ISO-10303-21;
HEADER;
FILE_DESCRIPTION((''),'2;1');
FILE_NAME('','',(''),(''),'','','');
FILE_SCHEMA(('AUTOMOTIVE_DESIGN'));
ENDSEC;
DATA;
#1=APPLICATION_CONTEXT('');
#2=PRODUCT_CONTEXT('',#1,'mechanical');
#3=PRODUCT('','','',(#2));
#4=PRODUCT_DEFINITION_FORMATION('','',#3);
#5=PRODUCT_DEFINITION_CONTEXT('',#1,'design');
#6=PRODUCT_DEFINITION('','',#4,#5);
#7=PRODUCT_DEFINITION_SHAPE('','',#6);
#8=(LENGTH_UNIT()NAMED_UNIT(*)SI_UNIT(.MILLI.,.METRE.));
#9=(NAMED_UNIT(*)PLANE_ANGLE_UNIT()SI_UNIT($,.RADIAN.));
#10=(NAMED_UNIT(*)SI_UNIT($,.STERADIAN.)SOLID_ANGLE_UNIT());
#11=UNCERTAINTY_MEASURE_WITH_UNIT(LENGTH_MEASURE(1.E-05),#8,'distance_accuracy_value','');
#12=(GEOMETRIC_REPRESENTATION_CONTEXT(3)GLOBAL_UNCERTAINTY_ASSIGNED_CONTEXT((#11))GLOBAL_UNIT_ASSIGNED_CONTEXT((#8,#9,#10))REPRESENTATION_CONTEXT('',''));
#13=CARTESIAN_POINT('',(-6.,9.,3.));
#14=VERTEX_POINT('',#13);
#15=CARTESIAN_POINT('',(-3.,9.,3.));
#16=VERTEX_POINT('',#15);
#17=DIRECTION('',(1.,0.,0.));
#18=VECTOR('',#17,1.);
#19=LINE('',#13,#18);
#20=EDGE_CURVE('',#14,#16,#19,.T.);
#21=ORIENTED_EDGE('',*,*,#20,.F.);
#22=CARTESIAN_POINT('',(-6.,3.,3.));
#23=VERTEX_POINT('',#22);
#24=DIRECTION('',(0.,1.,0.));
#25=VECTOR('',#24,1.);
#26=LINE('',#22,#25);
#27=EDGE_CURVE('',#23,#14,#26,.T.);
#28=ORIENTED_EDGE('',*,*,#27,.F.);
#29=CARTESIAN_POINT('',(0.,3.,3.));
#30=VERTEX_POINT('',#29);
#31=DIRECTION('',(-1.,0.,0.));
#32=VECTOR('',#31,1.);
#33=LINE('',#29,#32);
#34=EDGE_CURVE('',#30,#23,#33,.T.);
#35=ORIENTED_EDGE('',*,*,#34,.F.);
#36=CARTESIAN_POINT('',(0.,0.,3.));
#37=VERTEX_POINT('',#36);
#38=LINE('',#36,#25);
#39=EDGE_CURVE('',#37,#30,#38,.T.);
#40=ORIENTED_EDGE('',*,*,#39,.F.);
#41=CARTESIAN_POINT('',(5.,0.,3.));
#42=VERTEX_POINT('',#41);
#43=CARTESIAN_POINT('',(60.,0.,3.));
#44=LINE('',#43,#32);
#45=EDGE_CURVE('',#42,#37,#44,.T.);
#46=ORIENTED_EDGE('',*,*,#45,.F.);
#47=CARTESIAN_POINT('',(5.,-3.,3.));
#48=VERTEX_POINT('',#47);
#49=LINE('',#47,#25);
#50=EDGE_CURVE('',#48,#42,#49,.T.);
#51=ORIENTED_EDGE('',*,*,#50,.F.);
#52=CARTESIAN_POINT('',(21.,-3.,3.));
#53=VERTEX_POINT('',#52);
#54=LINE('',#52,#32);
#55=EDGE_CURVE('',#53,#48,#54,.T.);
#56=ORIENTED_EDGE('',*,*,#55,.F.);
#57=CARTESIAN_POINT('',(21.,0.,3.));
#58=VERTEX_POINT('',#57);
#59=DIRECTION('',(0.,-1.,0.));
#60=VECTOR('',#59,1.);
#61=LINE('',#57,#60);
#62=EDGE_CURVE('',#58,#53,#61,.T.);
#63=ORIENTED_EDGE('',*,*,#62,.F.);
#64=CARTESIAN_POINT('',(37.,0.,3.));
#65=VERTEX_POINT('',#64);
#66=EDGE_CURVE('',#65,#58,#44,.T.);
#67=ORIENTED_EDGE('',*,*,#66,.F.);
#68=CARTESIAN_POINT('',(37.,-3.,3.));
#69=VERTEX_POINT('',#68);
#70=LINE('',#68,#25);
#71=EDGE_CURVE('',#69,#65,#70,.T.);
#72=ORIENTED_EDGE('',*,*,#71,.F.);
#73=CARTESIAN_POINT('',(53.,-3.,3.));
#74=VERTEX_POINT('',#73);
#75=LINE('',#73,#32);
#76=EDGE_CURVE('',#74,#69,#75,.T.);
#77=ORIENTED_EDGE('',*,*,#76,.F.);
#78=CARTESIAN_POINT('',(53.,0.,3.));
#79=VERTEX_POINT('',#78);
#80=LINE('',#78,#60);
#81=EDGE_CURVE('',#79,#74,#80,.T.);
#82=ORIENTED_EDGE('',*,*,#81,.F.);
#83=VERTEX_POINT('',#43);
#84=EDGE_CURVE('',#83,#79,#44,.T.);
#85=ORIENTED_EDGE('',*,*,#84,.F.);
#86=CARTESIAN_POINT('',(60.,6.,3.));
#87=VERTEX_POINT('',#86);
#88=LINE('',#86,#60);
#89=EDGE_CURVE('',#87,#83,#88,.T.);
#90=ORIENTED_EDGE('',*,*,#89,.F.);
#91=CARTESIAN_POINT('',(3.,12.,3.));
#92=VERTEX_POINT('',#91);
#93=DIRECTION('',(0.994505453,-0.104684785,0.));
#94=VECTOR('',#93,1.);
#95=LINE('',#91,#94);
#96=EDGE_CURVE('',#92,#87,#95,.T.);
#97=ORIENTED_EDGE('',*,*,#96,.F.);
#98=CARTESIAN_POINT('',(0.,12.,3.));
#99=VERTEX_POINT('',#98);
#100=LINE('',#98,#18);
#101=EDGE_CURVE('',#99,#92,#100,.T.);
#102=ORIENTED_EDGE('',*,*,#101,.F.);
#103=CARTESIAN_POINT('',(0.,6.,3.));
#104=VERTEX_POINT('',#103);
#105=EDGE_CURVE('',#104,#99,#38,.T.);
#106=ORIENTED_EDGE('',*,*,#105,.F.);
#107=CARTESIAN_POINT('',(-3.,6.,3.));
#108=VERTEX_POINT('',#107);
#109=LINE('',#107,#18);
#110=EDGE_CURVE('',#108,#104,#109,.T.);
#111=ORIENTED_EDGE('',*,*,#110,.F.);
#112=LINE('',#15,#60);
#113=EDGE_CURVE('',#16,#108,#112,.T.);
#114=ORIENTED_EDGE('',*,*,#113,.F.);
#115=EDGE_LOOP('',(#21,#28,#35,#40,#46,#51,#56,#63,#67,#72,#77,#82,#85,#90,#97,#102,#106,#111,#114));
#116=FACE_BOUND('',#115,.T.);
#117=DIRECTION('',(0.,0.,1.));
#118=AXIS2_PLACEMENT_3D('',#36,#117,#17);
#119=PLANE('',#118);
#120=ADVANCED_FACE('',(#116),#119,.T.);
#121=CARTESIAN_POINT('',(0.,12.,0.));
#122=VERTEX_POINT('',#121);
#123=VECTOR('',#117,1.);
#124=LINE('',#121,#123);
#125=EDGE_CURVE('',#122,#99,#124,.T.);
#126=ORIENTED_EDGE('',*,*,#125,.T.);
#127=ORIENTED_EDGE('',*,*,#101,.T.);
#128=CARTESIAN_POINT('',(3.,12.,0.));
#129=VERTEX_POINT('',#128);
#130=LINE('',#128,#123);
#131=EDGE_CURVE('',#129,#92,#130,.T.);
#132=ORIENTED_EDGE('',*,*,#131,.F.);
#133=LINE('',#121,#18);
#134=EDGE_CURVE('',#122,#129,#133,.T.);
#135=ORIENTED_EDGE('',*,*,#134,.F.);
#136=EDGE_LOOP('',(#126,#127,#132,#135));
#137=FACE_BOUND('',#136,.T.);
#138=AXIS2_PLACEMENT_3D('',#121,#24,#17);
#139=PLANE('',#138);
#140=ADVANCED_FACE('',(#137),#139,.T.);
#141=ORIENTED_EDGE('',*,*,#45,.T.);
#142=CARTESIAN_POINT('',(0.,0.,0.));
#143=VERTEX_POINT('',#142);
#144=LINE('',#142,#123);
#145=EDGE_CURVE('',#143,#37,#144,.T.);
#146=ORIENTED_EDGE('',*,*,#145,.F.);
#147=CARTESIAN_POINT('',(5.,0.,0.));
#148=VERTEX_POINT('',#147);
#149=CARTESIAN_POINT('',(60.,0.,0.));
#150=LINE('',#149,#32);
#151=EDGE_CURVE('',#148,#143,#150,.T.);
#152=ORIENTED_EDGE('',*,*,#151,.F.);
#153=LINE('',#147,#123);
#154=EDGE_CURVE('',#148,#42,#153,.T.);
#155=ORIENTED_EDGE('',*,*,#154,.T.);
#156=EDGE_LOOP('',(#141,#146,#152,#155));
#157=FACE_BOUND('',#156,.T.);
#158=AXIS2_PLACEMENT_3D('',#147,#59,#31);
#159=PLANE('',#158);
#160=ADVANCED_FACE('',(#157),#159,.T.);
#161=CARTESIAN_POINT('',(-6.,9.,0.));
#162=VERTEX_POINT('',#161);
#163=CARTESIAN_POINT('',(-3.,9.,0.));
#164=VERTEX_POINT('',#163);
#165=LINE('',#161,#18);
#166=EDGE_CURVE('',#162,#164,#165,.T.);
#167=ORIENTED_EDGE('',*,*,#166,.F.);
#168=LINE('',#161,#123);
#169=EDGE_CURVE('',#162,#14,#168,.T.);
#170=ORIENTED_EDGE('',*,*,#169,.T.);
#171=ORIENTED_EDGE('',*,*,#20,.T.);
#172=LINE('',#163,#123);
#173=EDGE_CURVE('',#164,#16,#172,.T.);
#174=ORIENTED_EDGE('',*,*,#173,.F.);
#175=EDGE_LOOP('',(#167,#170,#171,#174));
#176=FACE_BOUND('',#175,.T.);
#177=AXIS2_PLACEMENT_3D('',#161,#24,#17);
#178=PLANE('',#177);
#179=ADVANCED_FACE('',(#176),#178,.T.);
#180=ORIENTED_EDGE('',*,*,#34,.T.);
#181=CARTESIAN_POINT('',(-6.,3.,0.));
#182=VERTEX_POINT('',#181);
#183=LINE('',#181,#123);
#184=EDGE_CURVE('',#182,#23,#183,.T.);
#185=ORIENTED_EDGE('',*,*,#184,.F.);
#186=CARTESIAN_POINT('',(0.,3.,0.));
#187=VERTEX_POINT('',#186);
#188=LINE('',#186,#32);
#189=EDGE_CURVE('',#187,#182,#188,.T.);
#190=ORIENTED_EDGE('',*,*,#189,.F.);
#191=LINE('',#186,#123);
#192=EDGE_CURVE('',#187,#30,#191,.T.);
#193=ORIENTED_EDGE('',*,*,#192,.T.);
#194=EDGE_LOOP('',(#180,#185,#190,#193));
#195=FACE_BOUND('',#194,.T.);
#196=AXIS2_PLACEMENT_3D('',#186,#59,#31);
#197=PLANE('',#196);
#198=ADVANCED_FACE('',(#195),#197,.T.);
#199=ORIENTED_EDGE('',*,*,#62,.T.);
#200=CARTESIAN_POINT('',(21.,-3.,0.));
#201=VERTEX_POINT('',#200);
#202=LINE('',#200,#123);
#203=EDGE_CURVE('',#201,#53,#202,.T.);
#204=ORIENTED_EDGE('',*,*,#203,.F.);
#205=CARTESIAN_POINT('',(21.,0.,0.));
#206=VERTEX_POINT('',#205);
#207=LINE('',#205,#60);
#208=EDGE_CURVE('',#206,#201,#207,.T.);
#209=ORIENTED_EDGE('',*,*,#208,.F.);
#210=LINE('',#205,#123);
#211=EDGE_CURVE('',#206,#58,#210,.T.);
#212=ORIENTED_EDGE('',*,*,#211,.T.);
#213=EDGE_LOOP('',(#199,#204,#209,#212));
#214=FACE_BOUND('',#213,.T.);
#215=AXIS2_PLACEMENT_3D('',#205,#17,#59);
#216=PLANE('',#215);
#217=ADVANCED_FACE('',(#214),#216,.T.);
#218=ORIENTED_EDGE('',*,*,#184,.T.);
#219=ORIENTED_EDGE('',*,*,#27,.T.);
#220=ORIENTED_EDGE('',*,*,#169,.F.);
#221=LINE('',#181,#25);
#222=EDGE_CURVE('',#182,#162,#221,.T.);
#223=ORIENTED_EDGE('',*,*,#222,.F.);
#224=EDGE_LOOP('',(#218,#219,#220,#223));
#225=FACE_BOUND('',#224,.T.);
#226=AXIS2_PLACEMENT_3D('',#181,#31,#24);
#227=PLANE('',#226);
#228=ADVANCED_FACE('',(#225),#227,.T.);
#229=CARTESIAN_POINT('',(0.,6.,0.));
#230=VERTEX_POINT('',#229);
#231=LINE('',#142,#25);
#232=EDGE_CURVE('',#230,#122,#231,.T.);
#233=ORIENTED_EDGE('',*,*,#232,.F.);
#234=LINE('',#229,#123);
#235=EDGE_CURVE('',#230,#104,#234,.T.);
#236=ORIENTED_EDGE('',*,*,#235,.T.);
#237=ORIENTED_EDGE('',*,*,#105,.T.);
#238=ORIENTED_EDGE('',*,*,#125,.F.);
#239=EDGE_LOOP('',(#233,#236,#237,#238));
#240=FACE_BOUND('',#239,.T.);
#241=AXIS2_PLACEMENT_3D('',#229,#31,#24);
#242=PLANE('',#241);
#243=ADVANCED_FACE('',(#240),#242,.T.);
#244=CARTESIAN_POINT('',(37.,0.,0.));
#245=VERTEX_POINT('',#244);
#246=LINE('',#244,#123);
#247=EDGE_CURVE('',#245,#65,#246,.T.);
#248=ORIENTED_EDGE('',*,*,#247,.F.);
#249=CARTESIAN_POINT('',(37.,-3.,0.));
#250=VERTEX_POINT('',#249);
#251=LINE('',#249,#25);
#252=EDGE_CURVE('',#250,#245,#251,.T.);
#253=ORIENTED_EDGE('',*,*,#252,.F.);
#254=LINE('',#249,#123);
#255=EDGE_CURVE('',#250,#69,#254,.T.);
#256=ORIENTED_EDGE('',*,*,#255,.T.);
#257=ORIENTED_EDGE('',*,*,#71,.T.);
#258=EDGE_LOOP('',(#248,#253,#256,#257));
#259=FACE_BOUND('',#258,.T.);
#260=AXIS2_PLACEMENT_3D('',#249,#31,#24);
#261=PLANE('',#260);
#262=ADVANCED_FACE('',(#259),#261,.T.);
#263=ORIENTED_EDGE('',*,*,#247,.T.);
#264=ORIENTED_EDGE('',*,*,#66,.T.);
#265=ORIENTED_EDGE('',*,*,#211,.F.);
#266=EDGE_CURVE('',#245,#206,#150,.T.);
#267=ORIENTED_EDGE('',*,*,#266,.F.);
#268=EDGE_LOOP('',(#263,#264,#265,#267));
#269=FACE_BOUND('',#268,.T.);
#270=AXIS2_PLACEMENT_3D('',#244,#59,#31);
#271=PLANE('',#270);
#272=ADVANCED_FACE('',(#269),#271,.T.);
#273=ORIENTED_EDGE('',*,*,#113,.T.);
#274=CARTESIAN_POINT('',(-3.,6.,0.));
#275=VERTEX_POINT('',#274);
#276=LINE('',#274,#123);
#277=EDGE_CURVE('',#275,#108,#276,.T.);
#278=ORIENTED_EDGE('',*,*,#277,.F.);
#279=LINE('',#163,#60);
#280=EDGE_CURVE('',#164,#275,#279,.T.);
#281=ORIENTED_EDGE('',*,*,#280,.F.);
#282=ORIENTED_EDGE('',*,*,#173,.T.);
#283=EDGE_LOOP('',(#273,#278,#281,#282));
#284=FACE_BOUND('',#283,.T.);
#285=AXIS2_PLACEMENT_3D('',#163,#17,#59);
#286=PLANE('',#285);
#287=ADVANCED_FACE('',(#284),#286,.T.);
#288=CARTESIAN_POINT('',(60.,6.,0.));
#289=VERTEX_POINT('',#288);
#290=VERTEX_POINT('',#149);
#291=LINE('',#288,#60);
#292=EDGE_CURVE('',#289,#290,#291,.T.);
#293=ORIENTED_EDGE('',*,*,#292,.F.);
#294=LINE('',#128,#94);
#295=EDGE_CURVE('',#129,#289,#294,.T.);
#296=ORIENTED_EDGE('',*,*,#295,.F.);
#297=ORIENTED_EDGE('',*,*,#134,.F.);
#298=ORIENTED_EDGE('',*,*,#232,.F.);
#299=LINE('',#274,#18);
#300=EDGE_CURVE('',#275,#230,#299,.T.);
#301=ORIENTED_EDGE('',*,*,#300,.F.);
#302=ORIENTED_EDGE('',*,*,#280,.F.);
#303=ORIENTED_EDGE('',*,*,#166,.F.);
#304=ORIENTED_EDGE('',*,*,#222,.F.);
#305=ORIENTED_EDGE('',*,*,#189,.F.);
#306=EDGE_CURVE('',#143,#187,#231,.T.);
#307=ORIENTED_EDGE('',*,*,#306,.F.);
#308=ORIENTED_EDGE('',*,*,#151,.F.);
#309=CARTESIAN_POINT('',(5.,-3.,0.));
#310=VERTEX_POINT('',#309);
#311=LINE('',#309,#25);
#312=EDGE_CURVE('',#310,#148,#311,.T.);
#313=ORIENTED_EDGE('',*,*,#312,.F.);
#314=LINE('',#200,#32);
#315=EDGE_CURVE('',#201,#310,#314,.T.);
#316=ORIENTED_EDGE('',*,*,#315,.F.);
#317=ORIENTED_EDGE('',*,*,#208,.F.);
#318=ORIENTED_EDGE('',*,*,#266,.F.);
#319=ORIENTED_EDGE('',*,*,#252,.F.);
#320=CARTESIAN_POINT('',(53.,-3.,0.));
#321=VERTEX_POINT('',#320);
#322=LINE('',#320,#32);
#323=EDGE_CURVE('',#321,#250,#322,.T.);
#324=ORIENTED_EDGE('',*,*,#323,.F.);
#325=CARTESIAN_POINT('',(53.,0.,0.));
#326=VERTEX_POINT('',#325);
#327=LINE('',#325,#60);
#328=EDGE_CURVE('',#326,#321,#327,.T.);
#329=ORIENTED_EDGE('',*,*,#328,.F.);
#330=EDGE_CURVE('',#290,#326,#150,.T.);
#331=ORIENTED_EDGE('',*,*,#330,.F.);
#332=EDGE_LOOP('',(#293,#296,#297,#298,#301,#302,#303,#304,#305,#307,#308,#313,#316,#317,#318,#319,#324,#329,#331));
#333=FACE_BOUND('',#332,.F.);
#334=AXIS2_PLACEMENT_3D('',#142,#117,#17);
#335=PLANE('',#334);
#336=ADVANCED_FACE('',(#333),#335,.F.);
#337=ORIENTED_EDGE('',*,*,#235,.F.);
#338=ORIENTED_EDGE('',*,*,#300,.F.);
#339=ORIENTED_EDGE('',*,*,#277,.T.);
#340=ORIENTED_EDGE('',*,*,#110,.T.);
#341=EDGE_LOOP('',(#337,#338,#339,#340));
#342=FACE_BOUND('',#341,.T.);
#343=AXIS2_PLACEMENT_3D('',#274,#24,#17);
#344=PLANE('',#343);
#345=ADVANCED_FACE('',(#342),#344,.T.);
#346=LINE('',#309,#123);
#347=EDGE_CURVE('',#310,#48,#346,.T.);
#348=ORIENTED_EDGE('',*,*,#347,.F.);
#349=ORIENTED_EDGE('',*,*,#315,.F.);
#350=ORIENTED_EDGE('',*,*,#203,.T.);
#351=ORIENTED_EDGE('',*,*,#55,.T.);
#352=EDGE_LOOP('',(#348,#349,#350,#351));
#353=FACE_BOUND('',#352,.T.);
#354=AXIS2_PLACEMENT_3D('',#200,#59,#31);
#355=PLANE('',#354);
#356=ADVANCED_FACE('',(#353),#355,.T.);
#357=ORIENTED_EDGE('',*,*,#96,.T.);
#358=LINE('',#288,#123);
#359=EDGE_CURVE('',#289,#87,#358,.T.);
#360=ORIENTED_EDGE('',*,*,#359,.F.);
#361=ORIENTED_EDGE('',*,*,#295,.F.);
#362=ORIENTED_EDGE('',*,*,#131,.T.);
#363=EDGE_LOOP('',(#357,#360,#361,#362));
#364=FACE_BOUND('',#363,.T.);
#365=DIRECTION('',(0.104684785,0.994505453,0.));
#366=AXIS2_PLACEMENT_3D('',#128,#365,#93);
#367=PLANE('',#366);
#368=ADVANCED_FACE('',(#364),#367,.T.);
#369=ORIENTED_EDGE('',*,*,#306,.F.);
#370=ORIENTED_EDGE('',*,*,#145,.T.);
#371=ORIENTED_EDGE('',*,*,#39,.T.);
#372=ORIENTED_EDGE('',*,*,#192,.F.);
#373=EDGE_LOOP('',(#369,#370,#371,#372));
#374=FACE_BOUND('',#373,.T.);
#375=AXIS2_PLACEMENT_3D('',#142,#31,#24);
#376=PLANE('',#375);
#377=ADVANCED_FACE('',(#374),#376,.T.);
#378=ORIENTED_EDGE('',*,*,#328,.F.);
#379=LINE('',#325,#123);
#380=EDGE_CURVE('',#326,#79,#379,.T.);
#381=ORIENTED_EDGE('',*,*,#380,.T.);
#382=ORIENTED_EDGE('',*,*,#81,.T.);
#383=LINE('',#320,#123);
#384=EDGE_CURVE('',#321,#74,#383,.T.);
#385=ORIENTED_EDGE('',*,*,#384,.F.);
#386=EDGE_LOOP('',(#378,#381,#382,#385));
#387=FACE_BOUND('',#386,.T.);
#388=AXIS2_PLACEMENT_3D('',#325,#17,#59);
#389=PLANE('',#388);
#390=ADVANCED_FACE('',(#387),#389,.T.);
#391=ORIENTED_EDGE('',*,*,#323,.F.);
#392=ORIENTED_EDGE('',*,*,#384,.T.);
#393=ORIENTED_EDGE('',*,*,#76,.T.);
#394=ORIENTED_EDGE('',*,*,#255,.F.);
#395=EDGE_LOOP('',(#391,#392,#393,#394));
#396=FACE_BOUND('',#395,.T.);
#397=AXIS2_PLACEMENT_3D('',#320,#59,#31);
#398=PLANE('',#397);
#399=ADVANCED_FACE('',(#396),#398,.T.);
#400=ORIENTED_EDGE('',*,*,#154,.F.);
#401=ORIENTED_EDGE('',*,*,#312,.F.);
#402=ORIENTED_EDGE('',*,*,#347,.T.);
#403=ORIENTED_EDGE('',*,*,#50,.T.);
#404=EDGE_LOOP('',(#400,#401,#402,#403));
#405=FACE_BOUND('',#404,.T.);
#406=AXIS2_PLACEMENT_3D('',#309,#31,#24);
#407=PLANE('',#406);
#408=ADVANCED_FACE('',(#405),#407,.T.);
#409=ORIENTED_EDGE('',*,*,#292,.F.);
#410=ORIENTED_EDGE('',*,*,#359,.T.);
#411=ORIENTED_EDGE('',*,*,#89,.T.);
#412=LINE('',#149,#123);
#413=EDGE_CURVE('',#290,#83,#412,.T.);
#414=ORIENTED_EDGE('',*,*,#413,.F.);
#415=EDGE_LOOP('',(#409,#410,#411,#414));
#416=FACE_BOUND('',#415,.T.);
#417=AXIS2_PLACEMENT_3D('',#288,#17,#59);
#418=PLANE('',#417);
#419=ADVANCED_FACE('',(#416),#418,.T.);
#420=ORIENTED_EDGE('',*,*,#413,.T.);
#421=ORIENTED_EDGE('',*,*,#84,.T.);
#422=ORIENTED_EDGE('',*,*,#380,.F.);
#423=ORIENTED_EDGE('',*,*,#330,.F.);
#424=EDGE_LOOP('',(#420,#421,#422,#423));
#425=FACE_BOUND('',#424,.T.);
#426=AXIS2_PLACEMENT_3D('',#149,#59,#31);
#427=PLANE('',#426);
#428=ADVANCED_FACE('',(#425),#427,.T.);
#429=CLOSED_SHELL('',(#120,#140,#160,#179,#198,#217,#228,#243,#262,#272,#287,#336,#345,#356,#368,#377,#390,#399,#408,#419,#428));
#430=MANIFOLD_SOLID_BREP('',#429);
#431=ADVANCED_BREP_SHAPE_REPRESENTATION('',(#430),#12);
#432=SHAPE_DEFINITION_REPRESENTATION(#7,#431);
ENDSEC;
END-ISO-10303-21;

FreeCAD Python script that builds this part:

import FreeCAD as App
import Part
import Sketcher
from FreeCAD import Vector
Q = App.Units.Quantity

doc = App.newDocument("Part")
body = doc.addObject("PartDesign::Body", "Body")

# Sketch on XY plane
sketch1 = body.newObject("Sketcher::SketchObject", "Sketch")
sketch1.AttachmentSupport = (doc.getObject("XY_Plane"), [""])
sketch1.MapMode = "FlatFace"
sketch1.addGeometry([
    Part.LineSegment(Vector(0, 3, 0), Vector(0, 0, 0)),  # 0
    Part.LineSegment(Vector(0, 0, 0), Vector(5, 0, 0)),  # 1
    Part.LineSegment(Vector(5, 0, 0), Vector(5, -3, 0)),  # 2
    Part.LineSegment(Vector(5, -3, 0), Vector(21, -3, 0)),  # 3
    Part.LineSegment(Vector(21, -3, 0), Vector(21, 0, 0)),  # 4
    Part.LineSegment(Vector(21, 0, 0), Vector(37, 0, 0)),  # 5
    Part.LineSegment(Vector(37, 0, 0), Vector(37, -3, 0)),  # 6
    Part.LineSegment(Vector(37, -3, 0), Vector(53, -3, 0)),  # 7
    Part.LineSegment(Vector(53, -3, 0), Vector(53, 0, 0)),  # 8
    Part.LineSegment(Vector(53, 0, 0), Vector(60, 0, 0)),  # 9
    Part.LineSegment(Vector(60, 0, 0), Vector(60, 6, 0)),  # 10
    Part.LineSegment(Vector(60, 6, 0), Vector(3, 12, 0)),  # 11
    Part.LineSegment(Vector(3, 12, 0), Vector(0, 12, 0)),  # 12
    Part.LineSegment(Vector(0, 12, 0), Vector(0, 6, 0)),  # 13
    Part.LineSegment(Vector(0, 6, 0), Vector(-3, 6, 0)),  # 14
    Part.LineSegment(Vector(-3, 6, 0), Vector(-3, 9, 0)),  # 15
    Part.LineSegment(Vector(-3, 9, 0), Vector(-6, 9, 0)),  # 16
    Part.LineSegment(Vector(-6, 9, 0), Vector(-6, 3, 0)),  # 17
    Part.LineSegment(Vector(-6, 3, 0), Vector(0, 3, 0)),  # 18
], False)
sketch1.addConstraint([
    Sketcher.Constraint("Coincident", 0, 2, 1, 1),
    Sketcher.Constraint("Coincident", 1, 2, 2, 1),
    Sketcher.Constraint("Coincident", 2, 2, 3, 1),
    Sketcher.Constraint("Coincident", 3, 2, 4, 1),
    Sketcher.Constraint("Coincident", 4, 2, 5, 1),
    Sketcher.Constraint("Coincident", 5, 2, 6, 1),
    Sketcher.Constraint("Coincident", 6, 2, 7, 1),
    Sketcher.Constraint("Coincident", 7, 2, 8, 1),
    Sketcher.Constraint("Coincident", 8, 2, 9, 1),
    Sketcher.Constraint("Coincident", 9, 2, 10, 1),
    Sketcher.Constraint("Coincident", 10, 2, 11, 1),
    Sketcher.Constraint("Coincident", 11, 2, 12, 1),
    Sketcher.Constraint("Coincident", 12, 2, 13, 1),
    Sketcher.Constraint("Coincident", 13, 2, 14, 1),
    Sketcher.Constraint("Coincident", 14, 2, 15, 1),
    Sketcher.Constraint("Coincident", 15, 2, 16, 1),
    Sketcher.Constraint("Coincident", 16, 2, 17, 1),
    Sketcher.Constraint("Coincident", 17, 2, 18, 1),
    Sketcher.Constraint("Coincident", 18, 2, 0, 1),
    Sketcher.Constraint("Vertical", 0),
    Sketcher.Constraint("Horizontal", 1),
    Sketcher.Constraint("Vertical", 2),
    Sketcher.Constraint("Horizontal", 3),
    Sketcher.Constraint("Vertical", 4),
    Sketcher.Constraint("Horizontal", 5),
    Sketcher.Constraint("Vertical", 6),
    Sketcher.Constraint("Horizontal", 7),
    Sketcher.Constraint("Vertical", 8),
    Sketcher.Constraint("Horizontal", 9),
    Sketcher.Constraint("Vertical", 10),
    Sketcher.Constraint("Horizontal", 12),
    Sketcher.Constraint("Vertical", 13),
    Sketcher.Constraint("Horizontal", 14),
    Sketcher.Constraint("Vertical", 15),
    Sketcher.Constraint("Horizontal", 16),
    Sketcher.Constraint("Vertical", 17),
    Sketcher.Constraint("Horizontal", 18),
    Sketcher.Constraint("Coincident", 0, 2, -1, 1),
    Sketcher.Constraint("PointOnObject", 4, 2, -1),
    Sketcher.Constraint("PointOnObject", 8, 2, -1),
    Sketcher.Constraint("PointOnObject", 12, 2, -2),
    Sketcher.Constraint("Horizontal", 3, 2, 6, 2),
    Sketcher.Constraint("Horizontal", 10, 2, 13, 2),
    Sketcher.Constraint("Equal", 3, 5),
    Sketcher.Constraint("Equal", 5, 7),
    Sketcher.Constraint("Equal", 12, 14),
    Sketcher.Constraint("Equal", 14, 16),
    Sketcher.Constraint("Equal", 16, 0),
    Sketcher.Constraint("Equal", 0, 2),
    Sketcher.Constraint("Equal", 18, 10),
    Sketcher.Constraint("Equal", 10, 13),
    Sketcher.Constraint("Equal", 8, 15),
    Sketcher.Constraint("DistanceX", 1, 1, 1, 2, Q("5 mm")),
    Sketcher.Constraint("DistanceX", 3, 1, 3, 2, Q("16 mm")),
    Sketcher.Constraint("DistanceX", 9, 1, 9, 2, Q("7 mm")),
    Sketcher.Constraint("DistanceX", 12, 2, 12, 1, Q("3 mm")),
])
pad1 = body.newObject("PartDesign::Pad", "Pad")
pad1.Profile = sketch1
pad1.Length = 3

doc.recompute()
